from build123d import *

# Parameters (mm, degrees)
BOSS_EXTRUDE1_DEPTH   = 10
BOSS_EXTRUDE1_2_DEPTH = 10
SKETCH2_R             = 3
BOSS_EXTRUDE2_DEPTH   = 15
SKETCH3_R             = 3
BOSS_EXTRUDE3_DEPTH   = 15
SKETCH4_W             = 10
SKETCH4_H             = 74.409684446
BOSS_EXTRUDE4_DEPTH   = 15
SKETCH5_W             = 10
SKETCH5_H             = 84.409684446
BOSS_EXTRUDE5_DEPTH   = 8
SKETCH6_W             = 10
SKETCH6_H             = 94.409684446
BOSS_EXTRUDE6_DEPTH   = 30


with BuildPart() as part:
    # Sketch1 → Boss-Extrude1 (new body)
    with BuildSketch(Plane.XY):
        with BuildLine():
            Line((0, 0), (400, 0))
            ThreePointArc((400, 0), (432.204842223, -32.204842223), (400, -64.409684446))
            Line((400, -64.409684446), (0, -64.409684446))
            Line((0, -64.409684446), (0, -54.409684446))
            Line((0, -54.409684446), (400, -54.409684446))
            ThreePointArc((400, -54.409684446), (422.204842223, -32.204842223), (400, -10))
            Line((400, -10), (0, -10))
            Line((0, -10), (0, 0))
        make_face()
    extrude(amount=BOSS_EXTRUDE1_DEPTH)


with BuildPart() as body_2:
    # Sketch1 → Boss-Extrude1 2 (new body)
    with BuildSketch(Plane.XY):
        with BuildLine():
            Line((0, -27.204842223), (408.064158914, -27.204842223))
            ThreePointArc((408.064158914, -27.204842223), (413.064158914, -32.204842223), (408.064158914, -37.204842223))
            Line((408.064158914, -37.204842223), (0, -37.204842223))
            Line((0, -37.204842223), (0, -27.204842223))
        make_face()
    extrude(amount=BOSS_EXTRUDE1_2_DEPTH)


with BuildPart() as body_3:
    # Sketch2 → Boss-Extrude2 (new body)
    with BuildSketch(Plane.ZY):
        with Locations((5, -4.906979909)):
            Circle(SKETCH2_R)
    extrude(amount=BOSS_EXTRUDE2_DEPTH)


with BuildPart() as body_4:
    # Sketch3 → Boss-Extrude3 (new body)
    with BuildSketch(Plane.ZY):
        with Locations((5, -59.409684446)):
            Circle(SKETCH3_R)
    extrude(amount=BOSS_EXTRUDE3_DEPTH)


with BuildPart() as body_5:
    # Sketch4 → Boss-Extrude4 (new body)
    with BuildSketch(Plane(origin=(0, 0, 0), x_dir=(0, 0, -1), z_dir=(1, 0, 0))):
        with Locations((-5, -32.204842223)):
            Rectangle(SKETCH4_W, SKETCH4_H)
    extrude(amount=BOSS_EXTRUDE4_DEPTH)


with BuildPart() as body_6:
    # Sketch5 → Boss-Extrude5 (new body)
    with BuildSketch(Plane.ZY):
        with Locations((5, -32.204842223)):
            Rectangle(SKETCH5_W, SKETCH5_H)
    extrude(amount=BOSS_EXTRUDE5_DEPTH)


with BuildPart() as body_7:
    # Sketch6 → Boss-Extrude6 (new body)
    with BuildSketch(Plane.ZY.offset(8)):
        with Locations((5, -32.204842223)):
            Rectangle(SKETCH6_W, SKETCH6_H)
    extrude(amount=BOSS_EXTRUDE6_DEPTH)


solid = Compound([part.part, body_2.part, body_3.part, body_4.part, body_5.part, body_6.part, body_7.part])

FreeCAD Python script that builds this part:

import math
import FreeCAD as App
import Part
import Sketcher

V = App.Vector


def add_polygon(sketch, points):
    """Adds a closed chain of lines whose ends are joined by coincident constraints."""
    first, n = sketch.GeometryCount, len(points)
    for a, b in zip(points, points[1:] + points[:1]):
        sketch.addGeometry(Part.LineSegment(App.Vector(*a, 0), App.Vector(*b, 0)), False)
    for i in range(n):
        sketch.addConstraint(Sketcher.Constraint("Coincident", first + i, 2, first + (i + 1) % n, 1))

doc = App.newDocument("Part")
params = doc.addObject("Spreadsheet::Sheet", "Params")
for row, (alias, value) in enumerate([
    ("sketch1_width", "400 mm"),
    ("sketch1_height", "10 mm"),
    ("pad1_length", "10 mm"),
    ("sketch2_radius", "5 mm"),
    ("pad2_length", "10 mm"),
    ("sketch3_diameter", "6 mm"),
    ("pad3_length", "15 mm"),
    ("sketch4_diameter", "6 mm"),
    ("pad4_length", "15 mm"),
    ("sketch5_height", "10 mm"),
    ("pad5_length", "15 mm"),
    ("sketch6_height", "10 mm"),
    ("pad6_length", "8 mm"),
    ("sketch7_height", "10 mm"),
    ("pad7_length", "30 mm"),
], start=1):
    params.set(f"A{row}", alias)
    params.set(f"B{row}", "=" + value)
    params.setAlias(f"B{row}", alias)

body = doc.addObject("PartDesign::Body", "Body")

# Sketch on XY plane
sketch1 = body.newObject("Sketcher::SketchObject", "Sketch")
sketch1.AttachmentSupport = (doc.getObject("XY_Plane"), [""])
sketch1.MapMode = "FlatFace"
sketch1.addGeometry([
    Part.LineSegment(V(400, 0, 0), V(0, 0, 0)),  # 0
    Part.LineSegment(V(0, 0, 0), V(0, -10, 0)),  # 1
    Part.LineSegment(V(0, -10, 0), V(400, -10, 0)),  # 2
    Part.ArcOfCircle(Part.Circle(V(400, -32.204842, 0), V(0, 0, 1), 22.204842), math.radians(-90), math.radians(90)),  # 3
    Part.LineSegment(V(400, -54.409684, 0), V(0, -54.409684, 0)),  # 4
    Part.LineSegment(V(0, -54.409684, 0), V(0, -64.409684, 0)),  # 5
    Part.LineSegment(V(0, -64.409684, 0), V(400, -64.409684, 0)),  # 6
    Part.ArcOfCircle(Part.Circle(V(400, -32.204842, 0), V(0, 0, 1), 32.204842), math.radians(-90), math.radians(90)),  # 7
], False)
sketch1.addConstraint([
    Sketcher.Constraint("Coincident", 0, 2, 1, 1),
    Sketcher.Constraint("Coincident", 1, 2, 2, 1),
    Sketcher.Constraint("Tangent", 2, 2, 3, 2),
    Sketcher.Constraint("Tangent", 3, 1, 4, 1),
    Sketcher.Constraint("Coincident", 4, 2, 5, 1),
    Sketcher.Constraint("Coincident", 5, 2, 6, 1),
    Sketcher.Constraint("Tangent", 6, 2, 7, 1),
    Sketcher.Constraint("Tangent", 7, 2, 0, 1),
    Sketcher.Constraint("Horizontal", 0),
    Sketcher.Constraint("Vertical", 1),
    Sketcher.Constraint("Horizontal", 2),
    Sketcher.Constraint("Horizontal", 4),
    Sketcher.Constraint("Vertical", 5),
    Sketcher.Constraint("Horizontal", 6),
    Sketcher.Constraint("Coincident", 0, 2, -1, 1),
    Sketcher.Constraint("Coincident", 7, 3, 3, 3),
    Sketcher.Constraint("PointOnObject", 4, 2, -2),
    Sketcher.Constraint("DistanceX", 0, 2, 0, 1, 400.0),
    Sketcher.Constraint("DistanceY", 1, 2, 1, 1, 10.0),
    Sketcher.Constraint("Radius", 3, 22.204842),
])
sketch1.setExpression("Constraints[17]", "Params.sketch1_width")
sketch1.setExpression("Constraints[18]", "Params.sketch1_height")
pad1 = body.newObject("PartDesign::Pad", "Pad")
pad1.Profile = sketch1
pad1.setExpression("Length", "Params.pad1_length")
body2 = doc.addObject("PartDesign::Body", "Body001")

# Sketch on XY plane
sketch2 = body2.newObject("Sketcher::SketchObject", "Sketch001")
sketch2.AttachmentSupport = (doc.getObject("XY_Plane001"), [""])
sketch2.MapMode = "FlatFace"
sketch2.addGeometry([
    Part.LineSegment(V(408.064159, -27.204842, 0), V(0, -27.204842, 0)),
    Part.LineSegment(V(0, -27.204842, 0), V(0, -37.204842, 0)),
    Part.LineSegment(V(0, -37.204842, 0), V(408.064159, -37.204842, 0)),
    Part.ArcOfCircle(Part.Circle(V(408.064159, -32.204842, 0), V(0, 0, 1), 5), math.radians(-90), math.radians(90)),
], False)
sketch2.addConstraint([
    Sketcher.Constraint("Coincident", 0, 2, 1, 1),
    Sketcher.Constraint("Coincident", 1, 2, 2, 1),
    Sketcher.Constraint("Tangent", 2, 2, 3, 1),
    Sketcher.Constraint("Tangent", 3, 2, 0, 1),
    Sketcher.Constraint("Horizontal", 0),
    Sketcher.Constraint("Vertical", 1),
    Sketcher.Constraint("Horizontal", 2),
    Sketcher.Constraint("PointOnObject", 0, 2, -2),
    Sketcher.Constraint("Radius", 3, 5.0),
    Sketcher.Constraint("DistanceX", 0, 2, 0, 1, 408.064159),
    Sketcher.Constraint("DistanceY", 3, 3, -1, 1, 32.204842),
])
sketch2.setExpression("Constraints[8]", "Params.sketch2_radius")
pad2 = body2.newObject("PartDesign::Pad", "Pad001")
pad2.Profile = sketch2
pad2.setExpression("Length", "Params.pad2_length")
body3 = doc.addObject("PartDesign::Body", "Body002")

# Sketch on YZ plane
sketch3 = body3.newObject("Sketcher::SketchObject", "Sketch002")
sketch3.AttachmentSupport = (doc.getObject("YZ_Plane002"), [""])
sketch3.MapMode = "FlatFace"
sketch3.addGeometry(Part.Circle(V(-4.90698, 5, 0), V(0, 0, 1), 3), False)
sketch3.addConstraint([
    Sketcher.Constraint("Diameter", 0, 6.0),
    Sketcher.Constraint("DistanceY", -1, 1, 0, 3, 5.0),
    Sketcher.Constraint("DistanceX", 0, 3, -1, 1, 4.90698),
])
sketch3.setExpression("Constraints[0]", "Params.sketch3_diameter")
pad3 = body3.newObject("PartDesign::Pad", "Pad002")
pad3.Profile = sketch3
pad3.setExpression("Length", "Params.pad3_length")
pad3.Reversed = True
body4 = doc.addObject("PartDesign::Body", "Body003")

# Sketch on YZ plane
sketch4 = body4.newObject("Sketcher::SketchObject", "Sketch003")
sketch4.AttachmentSupport = (doc.getObject("YZ_Plane003"), [""])
sketch4.MapMode = "FlatFace"
sketch4.addGeometry(Part.Circle(V(-59.409684, 5, 0), V(0, 0, 1), 3), False)
sketch4.addConstraint([
    Sketcher.Constraint("Diameter", 0, 6.0),
    Sketcher.Constraint("DistanceY", -1, 1, 0, 3, 5.0),
    Sketcher.Constraint("DistanceX", 0, 3, -1, 1, 59.409684),
])
sketch4.setExpression("Constraints[0]", "Params.sketch4_diameter")
pad4 = body4.newObject("PartDesign::Pad", "Pad003")
pad4.Profile = sketch4
pad4.setExpression("Length", "Params.pad4_length")
pad4.Reversed = True
body5 = doc.addObject("PartDesign::Body", "Body004")

# Sketch on YZ plane
sketch5 = body5.newObject("Sketcher::SketchObject", "Sketch004")
sketch5.AttachmentSupport = (doc.getObject("YZ_Plane004"), [""])
sketch5.MapMode = "FlatFace"
add_polygon(sketch5, [(5, 10), (-69.409684, 10), (-69.409684, 0), (5, 0)])  # lines 0-3
sketch5.addConstraint([
    Sketcher.Constraint("Horizontal", 0),
    Sketcher.Constraint("Vertical", 1),
    Sketcher.Constraint("Horizontal", 2),
    Sketcher.Constraint("Vertical", 3),
    Sketcher.Constraint("PointOnObject", 1, 2, -1),
    Sketcher.Constraint("DistanceY", 1, 2, 1, 1, 10.0),
    Sketcher.Constraint("DistanceX", -1, 1, 2, 2, 5.0),
    Sketcher.Constraint("DistanceX", 0, 2, 0, 1, 74.409684),
])
sketch5.setExpression("Constraints[9]", "Params.sketch5_height")
pad5 = body5.newObject("PartDesign::Pad", "Pad004")
pad5.Profile = sketch5
pad5.setExpression("Length", "Params.pad5_length")
body6 = doc.addObject("PartDesign::Body", "Body005")

# Sketch on YZ plane
sketch6 = body6.newObject("Sketcher::SketchObject", "Sketch005")
sketch6.AttachmentSupport = (doc.getObject("YZ_Plane005"), [""])
sketch6.MapMode = "FlatFace"
add_polygon(sketch6, [(10, 0), (-74.409684, 0), (-74.409684, 10), (10, 10)])  # lines 0-3
sketch6.addConstraint([
    Sketcher.Constraint("Horizontal", 0),
    Sketcher.Constraint("Vertical", 1),
    Sketcher.Constraint("Horizontal", 2),
    Sketcher.Constraint("Vertical", 3),
    Sketcher.Constraint("PointOnObject", 0, 2, -1),
    Sketcher.Constraint("DistanceY", 1, 1, 1, 2, 10.0),
    Sketcher.Constraint("DistanceX", -1, 1, 2, 2, 10.0),
    Sketcher.Constraint("DistanceX", 0, 2, 0, 1, 84.409684),
])
sketch6.setExpression("Constraints[9]", "Params.sketch6_height")
pad6 = body6.newObject("PartDesign::Pad", "Pad005")
pad6.Profile = sketch6
pad6.setExpression("Length", "Params.pad6_length")
pad6.Reversed = True
body7 = doc.addObject("PartDesign::Body", "Body006")

# Sketch on YZ plane
sketch7 = body7.newObject("Sketcher::SketchObject", "Sketch006")
sketch7.AttachmentSupport = (doc.getObject("YZ_Plane006"), [""])
sketch7.MapMode = "FlatFace"
sketch7.AttachmentOffset = App.Placement(V(0, 0, -8), App.Rotation())
add_polygon(sketch7, [(15, 0), (-79.409684, 0), (-79.409684, 10), (15, 10)])  # lines 0-3
sketch7.addConstraint([
    Sketcher.Constraint("Horizontal", 0),
    Sketcher.Constraint("Vertical", 1),
    Sketcher.Constraint("Horizontal", 2),
    Sketcher.Constraint("Vertical", 3),
    Sketcher.Constraint("PointOnObject", 0, 2, -1),
    Sketcher.Constraint("DistanceY", 1, 1, 1, 2, 10.0),
    Sketcher.Constraint("DistanceX", -1, 1, 2, 2, 15.0),
    Sketcher.Constraint("DistanceX", 0, 2, 0, 1, 94.409684),
])
sketch7.setExpression("Constraints[9]", "Params.sketch7_height")
pad7 = body7.newObject("PartDesign::Pad", "Pad006")
pad7.Profile = sketch7
pad7.setExpression("Length", "Params.pad7_length")
pad7.Reversed = True

doc.recompute()
